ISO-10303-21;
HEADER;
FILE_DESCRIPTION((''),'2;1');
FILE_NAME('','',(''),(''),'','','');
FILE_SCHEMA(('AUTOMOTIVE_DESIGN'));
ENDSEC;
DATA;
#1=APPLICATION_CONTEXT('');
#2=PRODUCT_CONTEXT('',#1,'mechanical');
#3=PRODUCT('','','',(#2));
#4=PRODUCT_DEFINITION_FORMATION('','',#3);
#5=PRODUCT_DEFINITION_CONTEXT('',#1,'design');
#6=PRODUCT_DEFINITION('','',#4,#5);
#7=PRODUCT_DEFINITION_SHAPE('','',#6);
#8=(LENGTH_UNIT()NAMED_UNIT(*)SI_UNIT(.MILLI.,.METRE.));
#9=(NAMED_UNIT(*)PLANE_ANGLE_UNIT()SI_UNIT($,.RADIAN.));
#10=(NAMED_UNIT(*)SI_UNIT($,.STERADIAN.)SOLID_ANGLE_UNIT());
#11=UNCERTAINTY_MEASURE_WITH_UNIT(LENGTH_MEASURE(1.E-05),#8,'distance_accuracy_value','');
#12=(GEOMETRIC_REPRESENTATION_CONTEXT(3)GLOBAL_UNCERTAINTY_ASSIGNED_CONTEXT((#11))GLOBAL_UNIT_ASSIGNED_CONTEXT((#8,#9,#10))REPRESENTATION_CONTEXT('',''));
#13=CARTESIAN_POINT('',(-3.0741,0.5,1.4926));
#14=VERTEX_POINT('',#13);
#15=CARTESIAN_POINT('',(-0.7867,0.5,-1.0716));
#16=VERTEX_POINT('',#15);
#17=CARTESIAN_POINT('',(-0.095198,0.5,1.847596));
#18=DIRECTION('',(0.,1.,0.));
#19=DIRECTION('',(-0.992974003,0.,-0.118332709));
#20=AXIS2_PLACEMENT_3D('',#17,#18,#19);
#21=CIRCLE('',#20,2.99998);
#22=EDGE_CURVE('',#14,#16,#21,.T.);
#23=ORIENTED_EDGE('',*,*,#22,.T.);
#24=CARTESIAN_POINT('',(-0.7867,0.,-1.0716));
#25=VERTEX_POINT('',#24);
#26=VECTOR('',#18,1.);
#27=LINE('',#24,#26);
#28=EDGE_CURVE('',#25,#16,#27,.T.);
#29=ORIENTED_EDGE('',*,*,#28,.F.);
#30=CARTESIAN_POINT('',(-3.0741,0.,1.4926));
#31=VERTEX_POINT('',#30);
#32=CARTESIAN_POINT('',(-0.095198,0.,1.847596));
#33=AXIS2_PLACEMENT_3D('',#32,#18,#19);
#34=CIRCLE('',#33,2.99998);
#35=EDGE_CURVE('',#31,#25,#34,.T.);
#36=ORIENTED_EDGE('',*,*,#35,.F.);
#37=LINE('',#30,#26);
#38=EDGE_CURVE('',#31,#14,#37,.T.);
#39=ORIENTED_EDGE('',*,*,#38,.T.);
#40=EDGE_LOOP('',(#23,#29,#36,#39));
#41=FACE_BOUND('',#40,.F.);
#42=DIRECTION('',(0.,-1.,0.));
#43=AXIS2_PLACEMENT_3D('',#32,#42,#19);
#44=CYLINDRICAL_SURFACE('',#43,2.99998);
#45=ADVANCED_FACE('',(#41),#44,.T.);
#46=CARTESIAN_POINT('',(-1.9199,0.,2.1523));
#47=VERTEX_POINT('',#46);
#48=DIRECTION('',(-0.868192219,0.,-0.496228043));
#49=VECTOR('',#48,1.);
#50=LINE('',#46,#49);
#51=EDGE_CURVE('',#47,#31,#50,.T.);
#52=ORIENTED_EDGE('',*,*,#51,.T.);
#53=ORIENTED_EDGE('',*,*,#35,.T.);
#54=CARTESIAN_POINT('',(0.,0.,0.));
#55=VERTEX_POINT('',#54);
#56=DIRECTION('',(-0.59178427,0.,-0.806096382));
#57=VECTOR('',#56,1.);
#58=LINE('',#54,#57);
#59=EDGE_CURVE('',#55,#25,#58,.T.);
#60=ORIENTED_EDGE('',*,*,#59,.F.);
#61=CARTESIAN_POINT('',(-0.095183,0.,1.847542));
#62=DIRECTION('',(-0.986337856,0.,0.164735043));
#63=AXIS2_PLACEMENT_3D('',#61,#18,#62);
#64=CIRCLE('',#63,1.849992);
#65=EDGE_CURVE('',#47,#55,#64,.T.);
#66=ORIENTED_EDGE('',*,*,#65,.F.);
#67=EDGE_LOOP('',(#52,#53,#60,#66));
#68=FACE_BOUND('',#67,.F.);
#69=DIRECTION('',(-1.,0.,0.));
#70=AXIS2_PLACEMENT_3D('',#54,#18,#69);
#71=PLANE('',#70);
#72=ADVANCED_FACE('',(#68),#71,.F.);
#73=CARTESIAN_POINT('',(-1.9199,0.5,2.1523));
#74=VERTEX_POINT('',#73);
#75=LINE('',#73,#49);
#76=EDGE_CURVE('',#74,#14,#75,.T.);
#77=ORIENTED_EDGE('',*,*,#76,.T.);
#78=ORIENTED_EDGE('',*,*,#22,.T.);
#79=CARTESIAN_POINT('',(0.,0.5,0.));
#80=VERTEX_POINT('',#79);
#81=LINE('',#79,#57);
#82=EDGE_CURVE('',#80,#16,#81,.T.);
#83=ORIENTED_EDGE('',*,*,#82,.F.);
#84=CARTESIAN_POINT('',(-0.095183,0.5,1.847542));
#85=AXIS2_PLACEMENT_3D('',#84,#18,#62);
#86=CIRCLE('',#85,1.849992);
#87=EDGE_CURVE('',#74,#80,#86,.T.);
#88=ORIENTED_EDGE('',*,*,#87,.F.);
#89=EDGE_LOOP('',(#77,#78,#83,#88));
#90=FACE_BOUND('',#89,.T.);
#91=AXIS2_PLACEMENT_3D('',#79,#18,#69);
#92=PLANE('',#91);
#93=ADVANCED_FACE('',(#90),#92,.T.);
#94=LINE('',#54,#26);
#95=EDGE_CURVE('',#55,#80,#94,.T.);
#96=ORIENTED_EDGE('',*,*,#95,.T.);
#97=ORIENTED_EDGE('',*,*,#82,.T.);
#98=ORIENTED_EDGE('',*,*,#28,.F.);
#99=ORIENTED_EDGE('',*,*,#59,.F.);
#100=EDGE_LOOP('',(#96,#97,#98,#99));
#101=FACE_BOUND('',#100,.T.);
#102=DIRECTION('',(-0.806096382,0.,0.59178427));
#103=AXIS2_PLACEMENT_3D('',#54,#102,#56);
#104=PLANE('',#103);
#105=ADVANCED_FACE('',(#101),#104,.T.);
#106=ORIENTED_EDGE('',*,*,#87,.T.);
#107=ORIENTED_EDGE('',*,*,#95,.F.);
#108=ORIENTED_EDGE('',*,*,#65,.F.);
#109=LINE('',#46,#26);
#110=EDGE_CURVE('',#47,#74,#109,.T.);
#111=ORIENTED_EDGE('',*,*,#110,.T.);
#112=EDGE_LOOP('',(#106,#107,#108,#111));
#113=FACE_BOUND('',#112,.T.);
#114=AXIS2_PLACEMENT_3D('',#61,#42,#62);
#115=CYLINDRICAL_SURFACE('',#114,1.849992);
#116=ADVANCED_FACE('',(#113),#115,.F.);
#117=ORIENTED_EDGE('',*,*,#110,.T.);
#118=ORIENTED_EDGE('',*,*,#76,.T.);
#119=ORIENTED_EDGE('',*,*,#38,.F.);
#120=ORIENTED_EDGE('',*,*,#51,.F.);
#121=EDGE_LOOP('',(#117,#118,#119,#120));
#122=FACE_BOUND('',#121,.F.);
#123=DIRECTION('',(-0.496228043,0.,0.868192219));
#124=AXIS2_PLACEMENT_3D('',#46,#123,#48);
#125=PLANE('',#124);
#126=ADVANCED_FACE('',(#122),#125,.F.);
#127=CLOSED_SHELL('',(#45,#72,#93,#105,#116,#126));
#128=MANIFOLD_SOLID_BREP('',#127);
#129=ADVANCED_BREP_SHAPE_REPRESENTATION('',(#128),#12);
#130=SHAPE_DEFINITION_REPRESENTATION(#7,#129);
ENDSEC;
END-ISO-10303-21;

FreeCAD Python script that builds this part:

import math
import FreeCAD as App
import Part
import Sketcher

V = App.Vector
Q = App.Units.Quantity

doc = App.newDocument("Part")
params = doc.addObject("Spreadsheet::Sheet", "Params")
for row, (alias, value) in enumerate([
    ("sketch1_radius", "3 mm"),
    ("sketch1_radius2", "1.85 mm"),
    ("pad1_length", "0.5 mm"),
], start=1):
    params.set(f"A{row}", alias)
    params.set(f"B{row}", "=" + value)
    params.setAlias(f"B{row}", alias)

body = doc.addObject("PartDesign::Body", "Body")

# Sketch on XZ plane
sketch1 = body.newObject("Sketcher::SketchObject", "Sketch")
sketch1.AttachmentSupport = (doc.getObject("XZ_Plane"), [""])
sketch1.MapMode = "FlatFace"
sketch1.addGeometry([
    Part.ArcOfCircle(Part.Circle(V(-0.1, 1.8, 0), V(0, 0, 1), 1.8), math.radians(-87), math.radians(171)),
    Part.LineSegment(V(-1.9, 2.2, 0), V(-3.1, 1.5, 0)),
    Part.ArcOfCircle(Part.Circle(V(-0.1, 1.8, 0), V(0, 0, 1), 3), math.radians(-103), math.radians(187)),
    Part.LineSegment(V(-0.8, -1.1, 0), V(0, 0, 0)),
], False)
sketch1.addConstraint([
    Sketcher.Constraint("Coincident", 0, 2, 1, 1),
    Sketcher.Constraint("Coincident", 1, 2, 2, 2),
    Sketcher.Constraint("Coincident", 2, 1, 3, 1),
    Sketcher.Constraint("Coincident", 3, 2, 0, 1),
    Sketcher.Constraint("Coincident", 3, 2, -1, 1),
    Sketcher.Constraint("Coincident", 2, 3, 0, 3),
    Sketcher.Constraint("Equal", 1, 3),
    Sketcher.Constraint("Radius", 2, 3.0),
    Sketcher.Constraint("Radius", 0, 1.85),
    Sketcher.Constraint("Angle", 1, Q("-150.2492 deg")),
    Sketcher.Constraint("DistanceX", 0, 2, -1, 1, 1.92),
    Sketcher.Constraint("DistanceX", 1, 2, -1, 1, 3.074),
])
sketch1.setExpression("Constraints[7]", "Params.sketch1_radius")
sketch1.setExpression("Constraints[8]", "Params.sketch1_radius2")
pad1 = body.newObject("PartDesign::Pad", "Pad")
pad1.Profile = sketch1
pad1.setExpression("Length", "Params.pad1_length")
pad1.Reversed = True

doc.recompute()
